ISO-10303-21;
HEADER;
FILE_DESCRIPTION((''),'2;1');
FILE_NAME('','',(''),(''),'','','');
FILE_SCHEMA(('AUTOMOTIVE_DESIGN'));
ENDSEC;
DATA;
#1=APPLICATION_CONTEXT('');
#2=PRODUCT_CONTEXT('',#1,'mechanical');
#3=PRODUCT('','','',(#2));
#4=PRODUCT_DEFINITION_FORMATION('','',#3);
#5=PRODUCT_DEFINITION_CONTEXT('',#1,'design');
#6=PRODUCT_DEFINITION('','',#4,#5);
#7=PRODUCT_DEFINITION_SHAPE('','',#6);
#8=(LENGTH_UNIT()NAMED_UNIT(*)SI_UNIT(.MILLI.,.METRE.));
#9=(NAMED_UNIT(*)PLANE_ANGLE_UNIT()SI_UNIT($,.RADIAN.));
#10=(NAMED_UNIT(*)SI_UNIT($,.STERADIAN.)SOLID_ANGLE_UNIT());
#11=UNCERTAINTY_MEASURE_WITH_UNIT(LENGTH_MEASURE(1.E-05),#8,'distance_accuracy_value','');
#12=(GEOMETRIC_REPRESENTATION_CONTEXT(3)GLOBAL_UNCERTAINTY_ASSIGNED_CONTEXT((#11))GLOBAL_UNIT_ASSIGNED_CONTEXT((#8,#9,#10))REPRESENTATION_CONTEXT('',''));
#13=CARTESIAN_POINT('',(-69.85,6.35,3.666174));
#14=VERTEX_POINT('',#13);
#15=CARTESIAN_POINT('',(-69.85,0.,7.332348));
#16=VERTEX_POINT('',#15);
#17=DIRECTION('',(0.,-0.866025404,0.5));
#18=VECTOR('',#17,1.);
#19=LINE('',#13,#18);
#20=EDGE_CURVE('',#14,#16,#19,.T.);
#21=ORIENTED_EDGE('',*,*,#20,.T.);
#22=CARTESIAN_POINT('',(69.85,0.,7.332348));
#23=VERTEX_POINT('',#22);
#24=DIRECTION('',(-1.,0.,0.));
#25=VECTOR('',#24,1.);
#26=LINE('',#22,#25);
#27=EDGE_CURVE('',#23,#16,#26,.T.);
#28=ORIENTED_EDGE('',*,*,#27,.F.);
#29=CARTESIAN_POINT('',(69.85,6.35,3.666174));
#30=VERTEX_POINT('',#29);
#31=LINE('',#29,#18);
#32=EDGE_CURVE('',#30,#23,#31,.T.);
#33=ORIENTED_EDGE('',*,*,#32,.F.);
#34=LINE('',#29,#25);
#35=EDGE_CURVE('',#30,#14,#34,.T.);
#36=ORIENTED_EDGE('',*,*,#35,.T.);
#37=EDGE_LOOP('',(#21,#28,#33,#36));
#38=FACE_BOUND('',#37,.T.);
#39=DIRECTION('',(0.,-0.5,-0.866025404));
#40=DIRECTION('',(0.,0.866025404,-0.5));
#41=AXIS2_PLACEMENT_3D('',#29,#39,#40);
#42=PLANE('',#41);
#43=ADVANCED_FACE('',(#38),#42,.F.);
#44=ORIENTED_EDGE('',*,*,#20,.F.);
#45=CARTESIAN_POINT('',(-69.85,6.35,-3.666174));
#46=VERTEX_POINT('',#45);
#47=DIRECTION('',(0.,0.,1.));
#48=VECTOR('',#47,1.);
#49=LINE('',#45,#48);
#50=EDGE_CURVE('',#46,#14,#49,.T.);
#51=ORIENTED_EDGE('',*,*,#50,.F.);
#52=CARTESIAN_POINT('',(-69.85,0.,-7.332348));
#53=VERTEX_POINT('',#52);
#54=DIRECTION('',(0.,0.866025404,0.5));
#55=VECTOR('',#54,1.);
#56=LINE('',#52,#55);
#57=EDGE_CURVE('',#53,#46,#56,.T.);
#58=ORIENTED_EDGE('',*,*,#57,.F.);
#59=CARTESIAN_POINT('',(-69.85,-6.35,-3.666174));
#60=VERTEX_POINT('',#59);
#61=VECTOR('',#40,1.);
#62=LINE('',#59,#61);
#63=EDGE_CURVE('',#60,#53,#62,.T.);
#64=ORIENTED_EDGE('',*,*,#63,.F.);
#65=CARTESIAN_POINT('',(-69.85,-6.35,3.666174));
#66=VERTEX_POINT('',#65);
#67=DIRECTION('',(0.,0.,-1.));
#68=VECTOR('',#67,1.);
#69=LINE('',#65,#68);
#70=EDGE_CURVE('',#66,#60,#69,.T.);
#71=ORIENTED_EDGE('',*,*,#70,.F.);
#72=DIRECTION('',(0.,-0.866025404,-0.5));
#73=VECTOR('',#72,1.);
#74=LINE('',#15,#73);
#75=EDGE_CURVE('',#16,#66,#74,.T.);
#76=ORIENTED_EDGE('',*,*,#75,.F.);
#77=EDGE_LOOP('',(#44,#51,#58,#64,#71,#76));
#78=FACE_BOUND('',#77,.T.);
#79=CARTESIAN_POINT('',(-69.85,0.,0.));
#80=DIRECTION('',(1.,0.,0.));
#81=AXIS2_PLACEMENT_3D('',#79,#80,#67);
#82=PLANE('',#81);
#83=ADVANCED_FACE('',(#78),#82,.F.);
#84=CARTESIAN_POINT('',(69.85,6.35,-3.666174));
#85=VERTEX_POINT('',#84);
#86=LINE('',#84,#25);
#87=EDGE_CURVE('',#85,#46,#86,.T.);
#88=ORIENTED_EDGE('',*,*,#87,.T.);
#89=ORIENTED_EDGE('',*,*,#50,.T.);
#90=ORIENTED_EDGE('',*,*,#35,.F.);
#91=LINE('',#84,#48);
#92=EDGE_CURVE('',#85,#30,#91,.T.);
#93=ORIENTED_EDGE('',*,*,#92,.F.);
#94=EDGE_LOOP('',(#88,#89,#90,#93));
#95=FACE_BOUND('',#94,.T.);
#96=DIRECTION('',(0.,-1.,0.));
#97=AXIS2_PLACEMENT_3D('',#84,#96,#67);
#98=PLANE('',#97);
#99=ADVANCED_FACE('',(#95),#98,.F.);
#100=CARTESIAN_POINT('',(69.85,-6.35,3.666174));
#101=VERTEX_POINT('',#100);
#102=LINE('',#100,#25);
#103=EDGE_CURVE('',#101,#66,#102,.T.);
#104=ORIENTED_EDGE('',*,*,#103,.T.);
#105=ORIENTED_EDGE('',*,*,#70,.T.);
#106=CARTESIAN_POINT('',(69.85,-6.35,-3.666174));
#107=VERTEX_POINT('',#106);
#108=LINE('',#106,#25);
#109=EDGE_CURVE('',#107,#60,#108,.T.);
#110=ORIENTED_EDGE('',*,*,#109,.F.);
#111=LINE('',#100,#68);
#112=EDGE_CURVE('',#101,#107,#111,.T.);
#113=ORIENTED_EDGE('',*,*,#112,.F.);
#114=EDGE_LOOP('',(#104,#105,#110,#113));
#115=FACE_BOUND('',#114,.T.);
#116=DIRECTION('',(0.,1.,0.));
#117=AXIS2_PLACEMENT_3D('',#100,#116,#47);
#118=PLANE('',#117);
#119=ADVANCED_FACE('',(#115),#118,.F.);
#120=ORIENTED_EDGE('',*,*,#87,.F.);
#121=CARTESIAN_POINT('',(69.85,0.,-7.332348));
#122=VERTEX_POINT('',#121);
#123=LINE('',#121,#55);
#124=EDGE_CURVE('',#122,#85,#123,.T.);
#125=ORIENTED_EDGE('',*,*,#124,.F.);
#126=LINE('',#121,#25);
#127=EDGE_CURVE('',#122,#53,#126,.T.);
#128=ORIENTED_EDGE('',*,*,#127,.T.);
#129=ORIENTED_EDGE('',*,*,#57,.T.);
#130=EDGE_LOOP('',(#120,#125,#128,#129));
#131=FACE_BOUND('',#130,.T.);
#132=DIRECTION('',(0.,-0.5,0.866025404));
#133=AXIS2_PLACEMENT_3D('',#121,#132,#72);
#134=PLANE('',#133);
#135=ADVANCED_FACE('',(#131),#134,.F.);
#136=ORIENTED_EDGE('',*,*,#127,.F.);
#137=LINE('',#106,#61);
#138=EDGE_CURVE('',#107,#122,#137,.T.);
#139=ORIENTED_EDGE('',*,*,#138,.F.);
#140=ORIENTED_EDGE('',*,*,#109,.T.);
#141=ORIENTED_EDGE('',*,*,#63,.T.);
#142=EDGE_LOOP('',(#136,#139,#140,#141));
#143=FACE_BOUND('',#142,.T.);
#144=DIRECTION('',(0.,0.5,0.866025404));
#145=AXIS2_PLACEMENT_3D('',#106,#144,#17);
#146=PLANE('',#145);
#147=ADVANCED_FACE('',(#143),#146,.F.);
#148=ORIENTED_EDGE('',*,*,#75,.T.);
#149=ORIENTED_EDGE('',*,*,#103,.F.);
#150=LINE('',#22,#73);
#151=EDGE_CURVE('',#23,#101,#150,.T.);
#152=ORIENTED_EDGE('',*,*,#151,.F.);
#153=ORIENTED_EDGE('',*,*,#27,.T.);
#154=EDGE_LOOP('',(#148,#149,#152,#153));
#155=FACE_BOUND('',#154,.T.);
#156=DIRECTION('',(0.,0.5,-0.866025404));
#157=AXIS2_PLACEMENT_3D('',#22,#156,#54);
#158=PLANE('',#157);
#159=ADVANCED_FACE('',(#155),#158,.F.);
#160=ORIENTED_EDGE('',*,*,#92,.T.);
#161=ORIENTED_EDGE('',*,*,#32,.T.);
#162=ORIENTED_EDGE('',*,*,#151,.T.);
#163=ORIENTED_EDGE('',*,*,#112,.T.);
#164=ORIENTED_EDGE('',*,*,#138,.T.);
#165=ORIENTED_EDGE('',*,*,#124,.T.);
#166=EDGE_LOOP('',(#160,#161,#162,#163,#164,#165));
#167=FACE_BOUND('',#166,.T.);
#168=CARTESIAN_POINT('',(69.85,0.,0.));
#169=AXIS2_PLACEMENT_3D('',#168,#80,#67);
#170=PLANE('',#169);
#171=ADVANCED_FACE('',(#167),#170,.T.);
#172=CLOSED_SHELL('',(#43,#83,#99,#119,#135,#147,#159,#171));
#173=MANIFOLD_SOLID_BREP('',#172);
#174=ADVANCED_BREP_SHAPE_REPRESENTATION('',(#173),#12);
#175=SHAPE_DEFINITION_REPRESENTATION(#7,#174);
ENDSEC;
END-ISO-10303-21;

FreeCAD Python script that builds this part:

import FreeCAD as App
import Part
import Sketcher
from FreeCAD import Vector
Q = App.Units.Quantity

doc = App.newDocument("Part")
params = doc.addObject("Spreadsheet::Sheet", "Params")
for row, (alias, value) in enumerate([
    ("pad1_length", "5.5 in"),
], start=1):
    params.set(f"A{row}", alias)
    params.set(f"B{row}", "=" + value)
    params.setAlias(f"B{row}", alias)

body = doc.addObject("PartDesign::Body", "Body")

# Sketch on YZ plane
sketch1 = body.newObject("Sketcher::SketchObject", "Sketch")
sketch1.AttachmentSupport = (doc.getObject("YZ_Plane"), [""])
sketch1.MapMode = "FlatFace"
sketch1.addGeometry([
    Part.LineSegment(Vector(0, -7, 0), Vector(6, -4, 0)),  # 0
    Part.LineSegment(Vector(6, -4, 0), Vector(6, 4, 0)),  # 1
    Part.LineSegment(Vector(6, 4, 0), Vector(0, 7, 0)),  # 2
    Part.LineSegment(Vector(0, 7, 0), Vector(-6, 4, 0)),  # 3
    Part.LineSegment(Vector(-6, 4, 0), Vector(-6, -4, 0)),  # 4
    Part.LineSegment(Vector(-6, -4, 0), Vector(0, -7, 0)),  # 5
], False)
sketch1.addConstraint([
    Sketcher.Constraint("Coincident", 0, 2, 1, 1),
    Sketcher.Constraint("Coincident", 1, 2, 2, 1),
    Sketcher.Constraint("Coincident", 2, 2, 3, 1),
    Sketcher.Constraint("Coincident", 3, 2, 4, 1),
    Sketcher.Constraint("Coincident", 4, 2, 5, 1),
    Sketcher.Constraint("Coincident", 5, 2, 0, 1),
    Sketcher.Constraint("Vertical", 1),
    Sketcher.Constraint("Vertical", 4),
    Sketcher.Constraint("Symmetric", 0, 2, 3, 2, -1, 1),
    Sketcher.Constraint("Symmetric", 2, 2, 5, 2, -1, 1),
    Sketcher.Constraint("PointOnObject", 2, 2, -2),
    Sketcher.Constraint("Parallel", 2, 5),
    Sketcher.Constraint("Horizontal", 1, 2, 3, 2),
    Sketcher.Constraint("Angle", 0, Q("30 deg")),
    Sketcher.Constraint("DistanceX", 3, 2, 1, 2, Q("0.5 in")),
    Sketcher.Constraint("DistanceY", 1, 1, 1, 2, Q("7.332348 mm")),
])
pad1 = body.newObject("PartDesign::Pad", "Pad")
pad1.Profile = sketch1
pad1.setExpression("Length", "Params.pad1_length")
pad1.Midplane = True

doc.recompute()
